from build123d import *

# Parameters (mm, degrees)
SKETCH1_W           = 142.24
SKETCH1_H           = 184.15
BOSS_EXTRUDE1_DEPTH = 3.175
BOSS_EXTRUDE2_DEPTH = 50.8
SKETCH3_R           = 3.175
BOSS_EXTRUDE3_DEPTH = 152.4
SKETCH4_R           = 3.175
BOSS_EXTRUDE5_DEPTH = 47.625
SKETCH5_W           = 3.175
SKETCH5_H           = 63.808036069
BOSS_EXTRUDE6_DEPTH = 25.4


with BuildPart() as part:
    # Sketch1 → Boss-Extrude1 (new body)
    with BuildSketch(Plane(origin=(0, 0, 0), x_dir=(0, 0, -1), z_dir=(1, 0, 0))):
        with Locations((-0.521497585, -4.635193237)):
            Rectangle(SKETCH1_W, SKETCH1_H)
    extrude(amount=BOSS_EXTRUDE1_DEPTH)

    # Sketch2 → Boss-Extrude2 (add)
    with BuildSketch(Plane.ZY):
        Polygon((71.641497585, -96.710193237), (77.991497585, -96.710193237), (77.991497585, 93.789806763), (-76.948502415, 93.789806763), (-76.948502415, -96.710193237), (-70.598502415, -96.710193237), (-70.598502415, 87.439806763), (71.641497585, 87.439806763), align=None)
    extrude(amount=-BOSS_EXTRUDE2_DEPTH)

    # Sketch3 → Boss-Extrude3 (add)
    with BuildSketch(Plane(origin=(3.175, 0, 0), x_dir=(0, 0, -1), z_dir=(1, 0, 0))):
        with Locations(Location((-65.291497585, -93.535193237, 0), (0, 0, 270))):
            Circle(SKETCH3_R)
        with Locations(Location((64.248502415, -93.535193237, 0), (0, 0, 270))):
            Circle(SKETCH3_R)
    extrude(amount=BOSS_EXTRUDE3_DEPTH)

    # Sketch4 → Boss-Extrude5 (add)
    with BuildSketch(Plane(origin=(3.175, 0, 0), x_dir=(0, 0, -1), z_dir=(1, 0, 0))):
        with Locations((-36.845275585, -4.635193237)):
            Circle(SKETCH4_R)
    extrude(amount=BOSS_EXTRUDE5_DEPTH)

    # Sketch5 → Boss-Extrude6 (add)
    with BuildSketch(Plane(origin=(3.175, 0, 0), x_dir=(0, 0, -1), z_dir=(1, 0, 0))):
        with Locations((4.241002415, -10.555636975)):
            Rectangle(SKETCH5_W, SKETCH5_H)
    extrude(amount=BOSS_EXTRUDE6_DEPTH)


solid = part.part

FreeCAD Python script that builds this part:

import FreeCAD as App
import Part
import Sketcher

V = App.Vector
Q = App.Units.Quantity

doc = App.newDocument("Part")
body = doc.addObject("PartDesign::Body", "Body")

sketch1 = doc.addObject("Sketcher::SketchObject", "Sketch")
body.addObject(sketch1)
sketch1.AttachmentSupport = (doc.YZ_Plane, [""])
sketch1.MapMode = "FlatFace"
sketch1.addGeometry([
    Part.LineSegment(V(87, 72, 0), V(-97, 72, 0)),
    Part.LineSegment(V(-97, 72, 0), V(-97, -71, 0)),
    Part.LineSegment(V(-97, -71, 0), V(87, -71, 0)),
    Part.LineSegment(V(87, -71, 0), V(87, 72, 0)),
], False)
sketch1.addConstraint([
    Sketcher.Constraint("Coincident", 0, 2, 1, 1),
    Sketcher.Constraint("Coincident", 1, 2, 2, 1),
    Sketcher.Constraint("Coincident", 2, 2, 3, 1),
    Sketcher.Constraint("Coincident", 3, 2, 0, 1),
    Sketcher.Constraint("Horizontal", 0),
    Sketcher.Constraint("Vertical", 1),
    Sketcher.Constraint("Horizontal", 2),
    Sketcher.Constraint("Vertical", 3),
    Sketcher.Constraint("DistanceY", 1, 2, 1, 1, Q("5.6 in")),
    Sketcher.Constraint("DistanceX", 0, 2, 0, 1, Q("7.25 in")),
    Sketcher.Constraint("DistanceX", 0, 2, -1, 1, 96.710193),
    Sketcher.Constraint("DistanceY", -1, 1, 0, 2, 71.641498),
])
pad1 = doc.addObject("PartDesign::Pad", "Pad")
body.addObject(pad1)
pad1.Profile = sketch1
pad1.Length = Q("0.125 in")

sketch2 = doc.addObject("Sketcher::SketchObject", "Sketch001")
body.addObject(sketch2)
sketch2.AttachmentSupport = (doc.YZ_Plane, [""])
sketch2.MapMode = "FlatFace"
sketch2.addGeometry([
    Part.LineSegment(V(-97, 72, 0), V(-97, 78, 0)),
    Part.LineSegment(V(-97, 78, 0), V(94, 78, 0)),
    Part.LineSegment(V(94, 78, 0), V(94, -77, 0)),
    Part.LineSegment(V(94, -77, 0), V(-97, -77, 0)),
    Part.LineSegment(V(-97, -77, 0), V(-97, -71, 0)),
    Part.LineSegment(V(-97, -71, 0), V(87, -71, 0)),
    Part.LineSegment(V(87, -71, 0), V(87, 72, 0)),
    Part.LineSegment(V(87, 72, 0), V(-97, 72, 0)),
], False)
sketch2.addConstraint([
    Sketcher.Constraint("Coincident", 0, 2, 1, 1),
    Sketcher.Constraint("Coincident", 1, 2, 2, 1),
    Sketcher.Constraint("Coincident", 2, 2, 3, 1),
    Sketcher.Constraint("Coincident", 3, 2, 4, 1),
    Sketcher.Constraint("Coincident", 4, 2, 5, 1),
    Sketcher.Constraint("Coincident", 5, 2, 6, 1),
    Sketcher.Constraint("Coincident", 6, 2, 7, 1),
    Sketcher.Constraint("Coincident", 7, 2, 0, 1),
    Sketcher.Constraint("Vertical", 0),
    Sketcher.Constraint("Horizontal", 1),
    Sketcher.Constraint("Vertical", 2),
    Sketcher.Constraint("Horizontal", 3),
    Sketcher.Constraint("Vertical", 4),
    Sketcher.Constraint("Horizontal", 5),
    Sketcher.Constraint("Vertical", 6),
    Sketcher.Constraint("Horizontal", 7),
    Sketcher.Constraint("Vertical", 0, 2, 3, 2),
    Sketcher.Constraint("Equal", 0, 4),
    Sketcher.Constraint("DistanceX", 1, 1, 1, 2, Q("7.5 in")),
    Sketcher.Constraint("DistanceY", 2, 2, 2, 1, Q("6.1 in")),
    Sketcher.Constraint("DistanceY", 6, 1, 6, 2, Q("5.6 in")),
    Sketcher.Constraint("DistanceX", 5, 1, 5, 2, Q("7.25 in")),
    Sketcher.Constraint("DistanceX", 0, 2, -1, 1, 96.710193),
    Sketcher.Constraint("DistanceY", -1, 1, 0, 2, 77.991498),
])
pad2 = doc.addObject("PartDesign::Pad", "Pad001")
body.addObject(pad2)
pad2.Profile = sketch2
pad2.Length = Q("2 in")

sketch3 = doc.addObject("Sketcher::SketchObject", "Sketch002")
body.addObject(sketch3)
sketch3.AttachmentSupport = (doc.YZ_Plane, [""])
sketch3.MapMode = "FlatFace"
sketch3.AttachmentOffset = App.Placement(V(0, 0, 0.125 * 25.4), App.Rotation())
sketch3.addGeometry([
    Part.Circle(V(-93.5, 65.3, 0), V(0, 0, 1), 3.2),
    Part.Circle(V(-93.5, -64.2, 0), V(0, 0, 1), 3.2),
], False)
sketch3.addConstraint([
    Sketcher.Constraint("Equal", 0, 1),
    Sketcher.Constraint("Vertical", 0, 3, 1, 3),
    Sketcher.Constraint("Diameter", 0, Q("0.25 in")),
    Sketcher.Constraint("DistanceY", 1, 3, 0, 3, Q("5.1 in")),
    Sketcher.Constraint("DistanceX", 0, 3, -1, 1, 93.535193),
    Sketcher.Constraint("DistanceY", -1, 1, 0, 3, 65.291498),
])
pad3 = doc.addObject("PartDesign::Pad", "Pad002")
body.addObject(pad3)
pad3.Profile = sketch3
pad3.Length = Q("6 in")

sketch4 = doc.addObject("Sketcher::SketchObject", "Sketch003")
body.addObject(sketch4)
sketch4.AttachmentSupport = (doc.YZ_Plane, [""])
sketch4.MapMode = "FlatFace"
sketch4.AttachmentOffset = App.Placement(V(0, 0, 0.125 * 25.4), App.Rotation())
sketch4.addGeometry(Part.Circle(V(-4.6, 36.8, 0), V(0, 0, 1), 3.2), False)
sketch4.addConstraint([
    Sketcher.Constraint("Diameter", 0, Q("0.25 in")),
    Sketcher.Constraint("DistanceX", 0, 3, -1, 1, 4.635193),
    Sketcher.Constraint("DistanceY", -1, 1, 0, 3, 36.845276),
])
pad4 = doc.addObject("PartDesign::Pad", "Pad003")
body.addObject(pad4)
pad4.Profile = sketch4
pad4.Length = Q("1.875 in")

sketch5 = doc.addObject("Sketcher::SketchObject", "Sketch004")
body.addObject(sketch5)
sketch5.AttachmentSupport = (doc.YZ_Plane, [""])
sketch5.MapMode = "FlatFace"
sketch5.AttachmentOffset = App.Placement(V(0, 0, 0.125 * 25.4), App.Rotation())
sketch5.addGeometry([
    Part.LineSegment(V(21.3, -2.7, 0), V(-42.5, -2.7, 0)),
    Part.LineSegment(V(-42.5, -2.7, 0), V(-42.5, -5.8, 0)),
    Part.LineSegment(V(-42.5, -5.8, 0), V(21.3, -5.8, 0)),
    Part.LineSegment(V(21.3, -5.8, 0), V(21.3, -2.7, 0)),
], False)
sketch5.addConstraint([
    Sketcher.Constraint("Coincident", 0, 2, 1, 1),
    Sketcher.Constraint("Coincident", 1, 2, 2, 1),
    Sketcher.Constraint("Coincident", 2, 2, 3, 1),
    Sketcher.Constraint("Coincident", 3, 2, 0, 1),
    Sketcher.Constraint("Horizontal", 0),
    Sketcher.Constraint("Vertical", 1),
    Sketcher.Constraint("Horizontal", 2),
    Sketcher.Constraint("Vertical", 3),
    Sketcher.Constraint("DistanceY", 1, 2, 1, 1, Q("0.125 in")),
    Sketcher.Constraint("DistanceX", 0, 2, 0, 1, 63.808036),
    Sketcher.Constraint("DistanceX", -1, 1, 2, 2, 21.348381),
    Sketcher.Constraint("DistanceY", 0, 2, -1, 1, 2.653502),
])
pad5 = doc.addObject("PartDesign::Pad", "Pad004")
body.addObject(pad5)
pad5.Profile = sketch5
pad5.Length = Q("1 in")

doc.recompute()
